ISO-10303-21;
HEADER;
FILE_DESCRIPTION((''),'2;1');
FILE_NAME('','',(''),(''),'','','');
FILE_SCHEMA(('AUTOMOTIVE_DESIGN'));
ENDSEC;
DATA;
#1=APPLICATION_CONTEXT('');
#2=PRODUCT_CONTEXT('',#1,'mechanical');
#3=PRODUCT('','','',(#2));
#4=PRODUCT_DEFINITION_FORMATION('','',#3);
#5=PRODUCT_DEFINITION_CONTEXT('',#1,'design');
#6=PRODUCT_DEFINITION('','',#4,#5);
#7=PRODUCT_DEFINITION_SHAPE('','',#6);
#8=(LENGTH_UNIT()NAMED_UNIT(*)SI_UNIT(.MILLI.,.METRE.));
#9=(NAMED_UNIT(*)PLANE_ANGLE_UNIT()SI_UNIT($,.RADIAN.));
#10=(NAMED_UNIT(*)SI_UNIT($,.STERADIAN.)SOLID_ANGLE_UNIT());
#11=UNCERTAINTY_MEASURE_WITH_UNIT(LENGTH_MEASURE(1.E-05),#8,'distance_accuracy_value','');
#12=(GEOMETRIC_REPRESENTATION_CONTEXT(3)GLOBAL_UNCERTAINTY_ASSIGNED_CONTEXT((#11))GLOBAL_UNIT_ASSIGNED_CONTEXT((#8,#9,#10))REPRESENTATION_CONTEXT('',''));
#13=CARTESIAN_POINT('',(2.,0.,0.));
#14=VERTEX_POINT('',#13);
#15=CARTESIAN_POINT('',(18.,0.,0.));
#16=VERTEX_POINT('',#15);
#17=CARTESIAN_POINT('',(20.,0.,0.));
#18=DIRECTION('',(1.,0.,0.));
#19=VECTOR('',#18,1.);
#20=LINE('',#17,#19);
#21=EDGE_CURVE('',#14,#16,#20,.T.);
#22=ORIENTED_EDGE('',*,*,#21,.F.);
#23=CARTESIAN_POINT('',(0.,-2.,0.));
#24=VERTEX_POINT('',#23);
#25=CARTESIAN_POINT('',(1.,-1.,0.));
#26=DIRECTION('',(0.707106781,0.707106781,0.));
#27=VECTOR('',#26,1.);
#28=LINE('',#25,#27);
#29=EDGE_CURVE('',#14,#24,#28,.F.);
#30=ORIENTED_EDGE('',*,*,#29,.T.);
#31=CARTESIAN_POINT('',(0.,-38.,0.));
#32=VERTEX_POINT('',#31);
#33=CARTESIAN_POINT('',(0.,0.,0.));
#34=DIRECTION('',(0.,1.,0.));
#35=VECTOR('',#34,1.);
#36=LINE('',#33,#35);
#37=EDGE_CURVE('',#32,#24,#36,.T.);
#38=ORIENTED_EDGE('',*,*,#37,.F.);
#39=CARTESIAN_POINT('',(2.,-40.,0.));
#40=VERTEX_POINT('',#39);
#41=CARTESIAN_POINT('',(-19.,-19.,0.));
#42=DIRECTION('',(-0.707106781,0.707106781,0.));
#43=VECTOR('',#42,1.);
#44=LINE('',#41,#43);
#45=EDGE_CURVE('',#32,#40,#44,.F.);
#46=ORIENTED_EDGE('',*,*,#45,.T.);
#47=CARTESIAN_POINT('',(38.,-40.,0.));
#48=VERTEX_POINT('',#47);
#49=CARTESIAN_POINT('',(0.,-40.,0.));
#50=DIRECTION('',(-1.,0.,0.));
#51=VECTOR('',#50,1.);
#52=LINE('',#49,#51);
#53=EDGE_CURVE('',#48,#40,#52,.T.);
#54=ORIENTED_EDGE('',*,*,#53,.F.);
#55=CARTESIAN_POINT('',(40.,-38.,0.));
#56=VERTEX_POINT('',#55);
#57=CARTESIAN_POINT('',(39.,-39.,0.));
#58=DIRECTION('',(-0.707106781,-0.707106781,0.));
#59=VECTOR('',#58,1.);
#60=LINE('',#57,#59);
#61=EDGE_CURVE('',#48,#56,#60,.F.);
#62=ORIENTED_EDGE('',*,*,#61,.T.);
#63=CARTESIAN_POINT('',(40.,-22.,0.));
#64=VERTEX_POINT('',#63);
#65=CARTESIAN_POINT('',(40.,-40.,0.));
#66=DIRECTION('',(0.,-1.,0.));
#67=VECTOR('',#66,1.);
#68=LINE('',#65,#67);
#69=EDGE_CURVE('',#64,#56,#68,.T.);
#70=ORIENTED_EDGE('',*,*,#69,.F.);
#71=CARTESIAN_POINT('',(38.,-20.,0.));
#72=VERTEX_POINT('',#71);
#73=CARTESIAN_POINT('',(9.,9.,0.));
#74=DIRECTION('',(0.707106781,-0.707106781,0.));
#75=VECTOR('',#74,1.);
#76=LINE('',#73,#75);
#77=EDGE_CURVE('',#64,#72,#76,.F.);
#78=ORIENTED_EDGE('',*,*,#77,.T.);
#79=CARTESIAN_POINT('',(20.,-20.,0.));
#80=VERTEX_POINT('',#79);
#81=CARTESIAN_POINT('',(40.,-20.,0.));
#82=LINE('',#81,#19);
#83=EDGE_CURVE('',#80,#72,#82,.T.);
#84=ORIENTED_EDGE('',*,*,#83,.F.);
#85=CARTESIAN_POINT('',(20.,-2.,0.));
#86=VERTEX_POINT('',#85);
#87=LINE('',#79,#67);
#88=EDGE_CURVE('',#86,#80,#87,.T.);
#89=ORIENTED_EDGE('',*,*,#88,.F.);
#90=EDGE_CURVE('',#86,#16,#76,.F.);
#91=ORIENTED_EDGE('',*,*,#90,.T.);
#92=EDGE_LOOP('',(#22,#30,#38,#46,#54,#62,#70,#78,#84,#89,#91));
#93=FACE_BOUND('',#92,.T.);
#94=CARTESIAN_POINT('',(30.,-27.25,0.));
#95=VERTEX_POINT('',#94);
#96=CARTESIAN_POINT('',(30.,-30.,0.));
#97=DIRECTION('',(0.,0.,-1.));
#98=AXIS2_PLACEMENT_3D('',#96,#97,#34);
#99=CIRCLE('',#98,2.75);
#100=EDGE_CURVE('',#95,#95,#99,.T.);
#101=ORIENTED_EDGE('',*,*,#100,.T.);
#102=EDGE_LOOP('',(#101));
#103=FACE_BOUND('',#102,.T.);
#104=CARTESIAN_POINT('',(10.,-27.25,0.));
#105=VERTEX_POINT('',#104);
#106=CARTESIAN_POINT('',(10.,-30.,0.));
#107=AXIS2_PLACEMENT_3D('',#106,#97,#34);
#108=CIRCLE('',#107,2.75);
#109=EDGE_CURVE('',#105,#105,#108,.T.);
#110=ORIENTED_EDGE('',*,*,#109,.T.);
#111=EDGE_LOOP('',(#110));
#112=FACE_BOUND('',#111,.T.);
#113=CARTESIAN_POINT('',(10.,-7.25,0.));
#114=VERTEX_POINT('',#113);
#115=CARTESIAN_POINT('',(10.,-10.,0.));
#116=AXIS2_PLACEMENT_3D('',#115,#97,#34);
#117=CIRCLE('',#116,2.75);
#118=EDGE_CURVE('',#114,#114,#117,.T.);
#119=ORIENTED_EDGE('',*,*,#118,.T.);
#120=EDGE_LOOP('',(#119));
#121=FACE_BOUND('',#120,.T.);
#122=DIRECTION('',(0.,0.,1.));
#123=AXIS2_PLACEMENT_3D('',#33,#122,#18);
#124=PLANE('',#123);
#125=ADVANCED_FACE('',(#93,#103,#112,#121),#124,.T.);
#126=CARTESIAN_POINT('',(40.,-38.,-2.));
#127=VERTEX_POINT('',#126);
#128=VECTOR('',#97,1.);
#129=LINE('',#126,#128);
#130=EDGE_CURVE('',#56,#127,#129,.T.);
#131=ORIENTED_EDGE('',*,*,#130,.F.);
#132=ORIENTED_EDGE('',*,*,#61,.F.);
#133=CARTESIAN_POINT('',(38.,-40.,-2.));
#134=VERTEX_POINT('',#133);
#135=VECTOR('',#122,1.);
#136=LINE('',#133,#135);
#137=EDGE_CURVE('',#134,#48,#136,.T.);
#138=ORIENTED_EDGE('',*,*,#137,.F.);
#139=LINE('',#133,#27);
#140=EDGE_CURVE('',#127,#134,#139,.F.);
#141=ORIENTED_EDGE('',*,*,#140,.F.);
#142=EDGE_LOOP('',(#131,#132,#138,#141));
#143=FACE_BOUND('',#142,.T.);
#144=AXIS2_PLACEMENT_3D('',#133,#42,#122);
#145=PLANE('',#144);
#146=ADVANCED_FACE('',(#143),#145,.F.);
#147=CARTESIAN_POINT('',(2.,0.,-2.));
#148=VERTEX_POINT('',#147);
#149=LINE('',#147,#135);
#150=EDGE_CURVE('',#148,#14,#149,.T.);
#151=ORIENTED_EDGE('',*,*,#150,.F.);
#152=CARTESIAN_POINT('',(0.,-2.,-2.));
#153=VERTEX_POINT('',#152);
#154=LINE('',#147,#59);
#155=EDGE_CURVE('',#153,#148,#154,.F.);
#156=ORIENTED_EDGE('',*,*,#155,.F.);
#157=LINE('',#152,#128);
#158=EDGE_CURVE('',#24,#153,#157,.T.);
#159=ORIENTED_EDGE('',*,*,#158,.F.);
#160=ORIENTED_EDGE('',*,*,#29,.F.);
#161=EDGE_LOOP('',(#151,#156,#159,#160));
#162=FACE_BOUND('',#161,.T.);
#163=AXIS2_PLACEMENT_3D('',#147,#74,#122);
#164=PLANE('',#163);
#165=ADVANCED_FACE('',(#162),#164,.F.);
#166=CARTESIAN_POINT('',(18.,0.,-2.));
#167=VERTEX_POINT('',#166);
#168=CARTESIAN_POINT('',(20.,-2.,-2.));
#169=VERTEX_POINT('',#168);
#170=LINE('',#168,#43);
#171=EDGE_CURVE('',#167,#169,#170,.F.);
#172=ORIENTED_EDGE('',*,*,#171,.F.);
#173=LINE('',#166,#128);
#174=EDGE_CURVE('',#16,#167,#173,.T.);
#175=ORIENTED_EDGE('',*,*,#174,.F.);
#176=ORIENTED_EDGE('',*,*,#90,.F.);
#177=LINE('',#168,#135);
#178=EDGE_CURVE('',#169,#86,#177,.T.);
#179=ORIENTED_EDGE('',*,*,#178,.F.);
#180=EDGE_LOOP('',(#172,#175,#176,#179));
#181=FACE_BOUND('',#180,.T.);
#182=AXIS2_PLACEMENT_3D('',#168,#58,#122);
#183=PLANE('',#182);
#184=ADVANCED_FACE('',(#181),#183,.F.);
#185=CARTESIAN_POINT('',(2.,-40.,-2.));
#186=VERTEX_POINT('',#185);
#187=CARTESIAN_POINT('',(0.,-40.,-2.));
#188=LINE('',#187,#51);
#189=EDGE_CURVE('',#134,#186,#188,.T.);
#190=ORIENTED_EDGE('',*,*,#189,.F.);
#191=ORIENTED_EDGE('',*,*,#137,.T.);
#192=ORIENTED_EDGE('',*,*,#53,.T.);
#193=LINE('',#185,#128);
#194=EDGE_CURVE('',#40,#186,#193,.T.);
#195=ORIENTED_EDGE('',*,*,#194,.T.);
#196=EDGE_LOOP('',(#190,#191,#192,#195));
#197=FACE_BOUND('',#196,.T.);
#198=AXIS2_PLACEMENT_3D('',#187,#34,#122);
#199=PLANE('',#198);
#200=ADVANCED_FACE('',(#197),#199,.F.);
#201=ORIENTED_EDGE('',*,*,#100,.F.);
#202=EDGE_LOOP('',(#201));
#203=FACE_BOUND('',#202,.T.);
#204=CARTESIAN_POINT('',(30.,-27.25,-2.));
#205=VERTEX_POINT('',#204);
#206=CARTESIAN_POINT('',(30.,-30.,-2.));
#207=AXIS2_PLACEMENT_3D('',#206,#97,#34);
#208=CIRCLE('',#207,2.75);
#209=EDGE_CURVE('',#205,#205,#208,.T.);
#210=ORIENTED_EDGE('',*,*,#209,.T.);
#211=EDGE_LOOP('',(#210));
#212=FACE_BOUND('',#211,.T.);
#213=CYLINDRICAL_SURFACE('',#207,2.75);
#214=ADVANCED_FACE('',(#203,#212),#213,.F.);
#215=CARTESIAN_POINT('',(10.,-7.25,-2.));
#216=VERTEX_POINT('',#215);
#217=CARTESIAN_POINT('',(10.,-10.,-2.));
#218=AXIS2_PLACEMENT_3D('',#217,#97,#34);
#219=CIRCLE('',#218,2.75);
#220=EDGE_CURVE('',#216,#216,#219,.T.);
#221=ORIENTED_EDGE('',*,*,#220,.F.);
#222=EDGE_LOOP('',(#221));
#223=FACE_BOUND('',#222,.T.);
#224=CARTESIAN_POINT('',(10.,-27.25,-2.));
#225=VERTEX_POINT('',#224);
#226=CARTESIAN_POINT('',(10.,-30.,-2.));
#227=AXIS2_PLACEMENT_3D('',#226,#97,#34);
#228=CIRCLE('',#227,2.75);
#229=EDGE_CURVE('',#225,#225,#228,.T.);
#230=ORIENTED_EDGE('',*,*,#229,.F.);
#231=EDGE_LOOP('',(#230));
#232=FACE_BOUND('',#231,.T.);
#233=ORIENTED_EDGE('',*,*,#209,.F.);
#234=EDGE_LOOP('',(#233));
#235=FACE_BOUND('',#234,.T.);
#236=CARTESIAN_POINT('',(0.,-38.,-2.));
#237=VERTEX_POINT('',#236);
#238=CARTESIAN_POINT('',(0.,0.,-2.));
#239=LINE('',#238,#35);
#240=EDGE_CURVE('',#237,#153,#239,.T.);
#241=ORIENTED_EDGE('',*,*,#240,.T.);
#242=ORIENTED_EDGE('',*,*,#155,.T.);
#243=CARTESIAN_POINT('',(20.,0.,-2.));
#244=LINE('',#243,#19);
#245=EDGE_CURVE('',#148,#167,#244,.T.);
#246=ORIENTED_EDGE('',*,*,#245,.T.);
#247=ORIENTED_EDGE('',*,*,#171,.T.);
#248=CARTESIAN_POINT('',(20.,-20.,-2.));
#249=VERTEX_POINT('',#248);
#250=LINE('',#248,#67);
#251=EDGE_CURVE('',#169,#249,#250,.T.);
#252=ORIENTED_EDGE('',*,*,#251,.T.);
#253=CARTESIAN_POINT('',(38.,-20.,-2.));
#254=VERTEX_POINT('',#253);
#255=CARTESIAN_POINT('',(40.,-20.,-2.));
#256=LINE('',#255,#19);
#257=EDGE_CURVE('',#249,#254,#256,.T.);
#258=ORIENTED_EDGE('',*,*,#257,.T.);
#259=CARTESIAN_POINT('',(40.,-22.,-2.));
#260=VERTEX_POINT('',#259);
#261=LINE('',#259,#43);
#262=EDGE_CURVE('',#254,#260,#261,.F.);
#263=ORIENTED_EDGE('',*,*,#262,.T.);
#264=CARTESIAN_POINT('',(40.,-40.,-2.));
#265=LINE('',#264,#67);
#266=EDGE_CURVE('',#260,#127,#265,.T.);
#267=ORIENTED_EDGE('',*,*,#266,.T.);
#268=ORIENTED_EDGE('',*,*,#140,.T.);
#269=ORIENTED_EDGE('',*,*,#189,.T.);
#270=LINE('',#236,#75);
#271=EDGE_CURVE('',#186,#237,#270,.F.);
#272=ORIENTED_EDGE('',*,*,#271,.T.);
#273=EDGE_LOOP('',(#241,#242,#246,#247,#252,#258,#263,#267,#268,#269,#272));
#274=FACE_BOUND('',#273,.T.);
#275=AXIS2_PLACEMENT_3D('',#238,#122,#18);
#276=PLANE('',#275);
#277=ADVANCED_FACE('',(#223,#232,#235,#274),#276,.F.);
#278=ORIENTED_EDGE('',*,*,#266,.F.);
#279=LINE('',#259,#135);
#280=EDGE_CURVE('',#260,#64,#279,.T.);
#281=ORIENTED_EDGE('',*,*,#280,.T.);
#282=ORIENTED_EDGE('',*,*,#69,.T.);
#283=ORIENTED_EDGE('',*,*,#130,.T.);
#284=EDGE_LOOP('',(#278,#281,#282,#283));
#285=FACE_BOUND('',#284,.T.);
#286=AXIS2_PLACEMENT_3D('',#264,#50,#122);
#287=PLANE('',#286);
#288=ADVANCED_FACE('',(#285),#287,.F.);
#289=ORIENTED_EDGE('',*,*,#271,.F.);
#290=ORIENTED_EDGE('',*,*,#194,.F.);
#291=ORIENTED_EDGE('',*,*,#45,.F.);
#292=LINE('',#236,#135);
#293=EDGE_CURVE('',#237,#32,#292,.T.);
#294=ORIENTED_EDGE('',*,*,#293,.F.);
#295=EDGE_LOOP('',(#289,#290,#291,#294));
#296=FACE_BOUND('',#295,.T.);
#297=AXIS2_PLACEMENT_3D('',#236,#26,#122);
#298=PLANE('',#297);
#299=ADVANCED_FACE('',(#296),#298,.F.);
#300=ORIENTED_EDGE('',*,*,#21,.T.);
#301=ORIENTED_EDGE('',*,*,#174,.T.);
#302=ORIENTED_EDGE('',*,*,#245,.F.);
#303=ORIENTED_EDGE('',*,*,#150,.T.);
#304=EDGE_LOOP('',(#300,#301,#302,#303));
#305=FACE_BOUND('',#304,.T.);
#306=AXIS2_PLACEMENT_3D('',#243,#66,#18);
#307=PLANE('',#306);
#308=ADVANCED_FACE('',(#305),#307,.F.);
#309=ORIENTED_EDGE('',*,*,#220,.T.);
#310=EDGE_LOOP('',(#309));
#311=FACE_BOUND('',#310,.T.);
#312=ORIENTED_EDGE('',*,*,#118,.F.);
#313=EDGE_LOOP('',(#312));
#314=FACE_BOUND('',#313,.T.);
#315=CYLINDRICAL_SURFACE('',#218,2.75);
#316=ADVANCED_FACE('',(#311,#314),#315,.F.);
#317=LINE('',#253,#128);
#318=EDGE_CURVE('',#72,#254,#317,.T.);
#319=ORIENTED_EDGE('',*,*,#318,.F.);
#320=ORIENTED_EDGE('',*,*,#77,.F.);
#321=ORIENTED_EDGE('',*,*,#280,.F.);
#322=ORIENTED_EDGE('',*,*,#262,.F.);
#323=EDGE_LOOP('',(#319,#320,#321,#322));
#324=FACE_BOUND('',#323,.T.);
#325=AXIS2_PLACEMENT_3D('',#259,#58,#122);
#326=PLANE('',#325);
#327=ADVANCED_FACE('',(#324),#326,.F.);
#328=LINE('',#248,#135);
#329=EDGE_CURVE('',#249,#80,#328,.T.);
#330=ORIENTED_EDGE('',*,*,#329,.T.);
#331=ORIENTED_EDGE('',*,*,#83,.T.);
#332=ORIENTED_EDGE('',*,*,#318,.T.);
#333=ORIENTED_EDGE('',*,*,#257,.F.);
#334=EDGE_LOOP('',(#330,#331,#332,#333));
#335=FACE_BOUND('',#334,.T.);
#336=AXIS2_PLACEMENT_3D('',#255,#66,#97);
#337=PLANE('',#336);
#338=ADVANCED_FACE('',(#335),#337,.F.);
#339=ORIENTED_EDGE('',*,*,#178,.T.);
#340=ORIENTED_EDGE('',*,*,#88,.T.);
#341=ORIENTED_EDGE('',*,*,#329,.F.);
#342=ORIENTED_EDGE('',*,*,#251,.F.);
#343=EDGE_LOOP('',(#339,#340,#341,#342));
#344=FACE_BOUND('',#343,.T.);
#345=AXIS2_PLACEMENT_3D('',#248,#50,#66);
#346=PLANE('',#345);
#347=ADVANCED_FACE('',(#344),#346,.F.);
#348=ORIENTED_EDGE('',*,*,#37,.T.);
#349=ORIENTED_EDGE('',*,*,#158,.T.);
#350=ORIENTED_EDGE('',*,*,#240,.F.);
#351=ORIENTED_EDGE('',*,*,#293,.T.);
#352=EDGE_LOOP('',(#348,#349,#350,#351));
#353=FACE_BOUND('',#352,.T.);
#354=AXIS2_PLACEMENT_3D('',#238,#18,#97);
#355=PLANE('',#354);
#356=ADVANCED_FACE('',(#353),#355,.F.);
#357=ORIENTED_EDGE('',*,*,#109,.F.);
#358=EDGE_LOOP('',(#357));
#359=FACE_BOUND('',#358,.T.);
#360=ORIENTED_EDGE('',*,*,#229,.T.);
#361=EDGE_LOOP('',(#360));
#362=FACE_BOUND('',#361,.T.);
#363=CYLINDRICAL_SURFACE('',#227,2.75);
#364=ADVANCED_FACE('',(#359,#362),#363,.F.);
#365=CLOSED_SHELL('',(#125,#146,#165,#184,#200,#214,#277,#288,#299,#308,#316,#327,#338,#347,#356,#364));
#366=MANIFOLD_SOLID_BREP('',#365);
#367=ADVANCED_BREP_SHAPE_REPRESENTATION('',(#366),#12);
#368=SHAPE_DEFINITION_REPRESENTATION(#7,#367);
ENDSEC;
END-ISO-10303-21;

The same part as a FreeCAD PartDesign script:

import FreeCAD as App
import Part
import Sketcher
from FreeCAD import Vector
Q = App.Units.Quantity


def edges_at(feature, points):
    """Names of the edges that pass closest to the given points."""
    edges = feature.Shape.Edges
    near = lambda p: min(range(len(edges)), key=lambda i: edges[i].distToShape(Part.Vertex(*p))[0])
    return sorted({f"Edge{near(p) + 1}" for p in points})


def add_polygon(sketch, points):
    """Adds a closed chain of lines whose ends are joined by coincident constraints."""
    first, n = sketch.GeometryCount, len(points)
    for a, b in zip(points, points[1:] + points[:1]):
        sketch.addGeometry(Part.LineSegment(App.Vector(*a, 0), App.Vector(*b, 0)), False)
    for i in range(n):
        sketch.addConstraint(Sketcher.Constraint("Coincident", first + i, 2, first + (i + 1) % n, 1))

doc = App.newDocument("Part")
body = doc.addObject("PartDesign::Body", "Body")

# Sketch on XY plane
sketch1 = doc.addObject("Sketcher::SketchObject", "Sketch")
body.addObject(sketch1)
sketch1.AttachmentSupport = (doc.XY_Plane, [""])
sketch1.MapMode = "FlatFace"
add_polygon(sketch1, [(0, -40), (0, 0), (20, 0), (20, -20), (40, -20), (40, -40)])  # lines 0-5
sketch1.addConstraint([
    Sketcher.Constraint("Vertical", 0),
    Sketcher.Constraint("Horizontal", 1),
    Sketcher.Constraint("Vertical", 2),
    Sketcher.Constraint("Horizontal", 3),
    Sketcher.Constraint("Vertical", 4),
    Sketcher.Constraint("Horizontal", 5),
    Sketcher.Constraint("Coincident", 0, 2, -1, 1),
    Sketcher.Constraint("Equal", 1, 3),
    Sketcher.Constraint("Equal", 5, 0),
    Sketcher.Constraint("Equal", 3, 2),
    Sketcher.Constraint("DistanceX", 1, 1, 1, 2, Q("20 mm")),
])
pad1 = doc.addObject("PartDesign::Pad", "Pad")
body.addObject(pad1)
pad1.Profile = sketch1
pad1.Length = 2
pad1.Reversed = True

# Sketch on XY plane
sketch2 = doc.addObject("Sketcher::SketchObject", "Sketch001")
body.addObject(sketch2)
sketch2.AttachmentSupport = (doc.XY_Plane, [""])
sketch2.MapMode = "FlatFace"
sketch2.AttachmentOffset = App.Placement(Vector(0, 0, -2), App.Rotation())
sketch2.addGeometry([
    Part.Circle(Vector(10, -30, 0), Vector(0, 0, 1), 2.75),
    Part.Circle(Vector(10, -10, 0), Vector(0, 0, 1), 2.75),
    Part.Circle(Vector(30, -30, 0), Vector(0, 0, 1), 2.75),
], False)
sketch2.addConstraint([
    Sketcher.Constraint("Equal", 0, 1),
    Sketcher.Constraint("Equal", 1, 2),
    Sketcher.Constraint("Horizontal", 0, 3, 2, 3),
    Sketcher.Constraint("Vertical", 0, 3, 1, 3),
    Sketcher.Constraint("Diameter", 0, Q("5.5 mm")),
    Sketcher.Constraint("DistanceX", -1, 1, 0, 3, Q("10 mm")),
    Sketcher.Constraint("DistanceY", 0, 3, -1, 1, Q("30 mm")),
    Sketcher.Constraint("DistanceY", 1, 3, -1, 1, Q("10 mm")),
    Sketcher.Constraint("DistanceX", -1, 1, 2, 3, Q("30 mm")),
])
doc.recompute()
hole = doc.addObject("PartDesign::Hole", "Hole")
body.addObject(hole)
hole.Profile = sketch2
hole.ThreadType = "None"
hole.Diameter = 5.5
hole.DepthType = "ThroughAll"
hole.Reversed = True
doc.recompute()

chamfer = doc.addObject("PartDesign::Chamfer", "Chamfer")
body.addObject(chamfer)
chamfer.Base = (hole, edges_at(hole, [
    (0, 0, -1),
    (0, -40, -1),
    (40, -40, -1),
    (40, -20, -1),
    (20, 0, -1),
]))
chamfer.Size = 2

doc.recompute()
